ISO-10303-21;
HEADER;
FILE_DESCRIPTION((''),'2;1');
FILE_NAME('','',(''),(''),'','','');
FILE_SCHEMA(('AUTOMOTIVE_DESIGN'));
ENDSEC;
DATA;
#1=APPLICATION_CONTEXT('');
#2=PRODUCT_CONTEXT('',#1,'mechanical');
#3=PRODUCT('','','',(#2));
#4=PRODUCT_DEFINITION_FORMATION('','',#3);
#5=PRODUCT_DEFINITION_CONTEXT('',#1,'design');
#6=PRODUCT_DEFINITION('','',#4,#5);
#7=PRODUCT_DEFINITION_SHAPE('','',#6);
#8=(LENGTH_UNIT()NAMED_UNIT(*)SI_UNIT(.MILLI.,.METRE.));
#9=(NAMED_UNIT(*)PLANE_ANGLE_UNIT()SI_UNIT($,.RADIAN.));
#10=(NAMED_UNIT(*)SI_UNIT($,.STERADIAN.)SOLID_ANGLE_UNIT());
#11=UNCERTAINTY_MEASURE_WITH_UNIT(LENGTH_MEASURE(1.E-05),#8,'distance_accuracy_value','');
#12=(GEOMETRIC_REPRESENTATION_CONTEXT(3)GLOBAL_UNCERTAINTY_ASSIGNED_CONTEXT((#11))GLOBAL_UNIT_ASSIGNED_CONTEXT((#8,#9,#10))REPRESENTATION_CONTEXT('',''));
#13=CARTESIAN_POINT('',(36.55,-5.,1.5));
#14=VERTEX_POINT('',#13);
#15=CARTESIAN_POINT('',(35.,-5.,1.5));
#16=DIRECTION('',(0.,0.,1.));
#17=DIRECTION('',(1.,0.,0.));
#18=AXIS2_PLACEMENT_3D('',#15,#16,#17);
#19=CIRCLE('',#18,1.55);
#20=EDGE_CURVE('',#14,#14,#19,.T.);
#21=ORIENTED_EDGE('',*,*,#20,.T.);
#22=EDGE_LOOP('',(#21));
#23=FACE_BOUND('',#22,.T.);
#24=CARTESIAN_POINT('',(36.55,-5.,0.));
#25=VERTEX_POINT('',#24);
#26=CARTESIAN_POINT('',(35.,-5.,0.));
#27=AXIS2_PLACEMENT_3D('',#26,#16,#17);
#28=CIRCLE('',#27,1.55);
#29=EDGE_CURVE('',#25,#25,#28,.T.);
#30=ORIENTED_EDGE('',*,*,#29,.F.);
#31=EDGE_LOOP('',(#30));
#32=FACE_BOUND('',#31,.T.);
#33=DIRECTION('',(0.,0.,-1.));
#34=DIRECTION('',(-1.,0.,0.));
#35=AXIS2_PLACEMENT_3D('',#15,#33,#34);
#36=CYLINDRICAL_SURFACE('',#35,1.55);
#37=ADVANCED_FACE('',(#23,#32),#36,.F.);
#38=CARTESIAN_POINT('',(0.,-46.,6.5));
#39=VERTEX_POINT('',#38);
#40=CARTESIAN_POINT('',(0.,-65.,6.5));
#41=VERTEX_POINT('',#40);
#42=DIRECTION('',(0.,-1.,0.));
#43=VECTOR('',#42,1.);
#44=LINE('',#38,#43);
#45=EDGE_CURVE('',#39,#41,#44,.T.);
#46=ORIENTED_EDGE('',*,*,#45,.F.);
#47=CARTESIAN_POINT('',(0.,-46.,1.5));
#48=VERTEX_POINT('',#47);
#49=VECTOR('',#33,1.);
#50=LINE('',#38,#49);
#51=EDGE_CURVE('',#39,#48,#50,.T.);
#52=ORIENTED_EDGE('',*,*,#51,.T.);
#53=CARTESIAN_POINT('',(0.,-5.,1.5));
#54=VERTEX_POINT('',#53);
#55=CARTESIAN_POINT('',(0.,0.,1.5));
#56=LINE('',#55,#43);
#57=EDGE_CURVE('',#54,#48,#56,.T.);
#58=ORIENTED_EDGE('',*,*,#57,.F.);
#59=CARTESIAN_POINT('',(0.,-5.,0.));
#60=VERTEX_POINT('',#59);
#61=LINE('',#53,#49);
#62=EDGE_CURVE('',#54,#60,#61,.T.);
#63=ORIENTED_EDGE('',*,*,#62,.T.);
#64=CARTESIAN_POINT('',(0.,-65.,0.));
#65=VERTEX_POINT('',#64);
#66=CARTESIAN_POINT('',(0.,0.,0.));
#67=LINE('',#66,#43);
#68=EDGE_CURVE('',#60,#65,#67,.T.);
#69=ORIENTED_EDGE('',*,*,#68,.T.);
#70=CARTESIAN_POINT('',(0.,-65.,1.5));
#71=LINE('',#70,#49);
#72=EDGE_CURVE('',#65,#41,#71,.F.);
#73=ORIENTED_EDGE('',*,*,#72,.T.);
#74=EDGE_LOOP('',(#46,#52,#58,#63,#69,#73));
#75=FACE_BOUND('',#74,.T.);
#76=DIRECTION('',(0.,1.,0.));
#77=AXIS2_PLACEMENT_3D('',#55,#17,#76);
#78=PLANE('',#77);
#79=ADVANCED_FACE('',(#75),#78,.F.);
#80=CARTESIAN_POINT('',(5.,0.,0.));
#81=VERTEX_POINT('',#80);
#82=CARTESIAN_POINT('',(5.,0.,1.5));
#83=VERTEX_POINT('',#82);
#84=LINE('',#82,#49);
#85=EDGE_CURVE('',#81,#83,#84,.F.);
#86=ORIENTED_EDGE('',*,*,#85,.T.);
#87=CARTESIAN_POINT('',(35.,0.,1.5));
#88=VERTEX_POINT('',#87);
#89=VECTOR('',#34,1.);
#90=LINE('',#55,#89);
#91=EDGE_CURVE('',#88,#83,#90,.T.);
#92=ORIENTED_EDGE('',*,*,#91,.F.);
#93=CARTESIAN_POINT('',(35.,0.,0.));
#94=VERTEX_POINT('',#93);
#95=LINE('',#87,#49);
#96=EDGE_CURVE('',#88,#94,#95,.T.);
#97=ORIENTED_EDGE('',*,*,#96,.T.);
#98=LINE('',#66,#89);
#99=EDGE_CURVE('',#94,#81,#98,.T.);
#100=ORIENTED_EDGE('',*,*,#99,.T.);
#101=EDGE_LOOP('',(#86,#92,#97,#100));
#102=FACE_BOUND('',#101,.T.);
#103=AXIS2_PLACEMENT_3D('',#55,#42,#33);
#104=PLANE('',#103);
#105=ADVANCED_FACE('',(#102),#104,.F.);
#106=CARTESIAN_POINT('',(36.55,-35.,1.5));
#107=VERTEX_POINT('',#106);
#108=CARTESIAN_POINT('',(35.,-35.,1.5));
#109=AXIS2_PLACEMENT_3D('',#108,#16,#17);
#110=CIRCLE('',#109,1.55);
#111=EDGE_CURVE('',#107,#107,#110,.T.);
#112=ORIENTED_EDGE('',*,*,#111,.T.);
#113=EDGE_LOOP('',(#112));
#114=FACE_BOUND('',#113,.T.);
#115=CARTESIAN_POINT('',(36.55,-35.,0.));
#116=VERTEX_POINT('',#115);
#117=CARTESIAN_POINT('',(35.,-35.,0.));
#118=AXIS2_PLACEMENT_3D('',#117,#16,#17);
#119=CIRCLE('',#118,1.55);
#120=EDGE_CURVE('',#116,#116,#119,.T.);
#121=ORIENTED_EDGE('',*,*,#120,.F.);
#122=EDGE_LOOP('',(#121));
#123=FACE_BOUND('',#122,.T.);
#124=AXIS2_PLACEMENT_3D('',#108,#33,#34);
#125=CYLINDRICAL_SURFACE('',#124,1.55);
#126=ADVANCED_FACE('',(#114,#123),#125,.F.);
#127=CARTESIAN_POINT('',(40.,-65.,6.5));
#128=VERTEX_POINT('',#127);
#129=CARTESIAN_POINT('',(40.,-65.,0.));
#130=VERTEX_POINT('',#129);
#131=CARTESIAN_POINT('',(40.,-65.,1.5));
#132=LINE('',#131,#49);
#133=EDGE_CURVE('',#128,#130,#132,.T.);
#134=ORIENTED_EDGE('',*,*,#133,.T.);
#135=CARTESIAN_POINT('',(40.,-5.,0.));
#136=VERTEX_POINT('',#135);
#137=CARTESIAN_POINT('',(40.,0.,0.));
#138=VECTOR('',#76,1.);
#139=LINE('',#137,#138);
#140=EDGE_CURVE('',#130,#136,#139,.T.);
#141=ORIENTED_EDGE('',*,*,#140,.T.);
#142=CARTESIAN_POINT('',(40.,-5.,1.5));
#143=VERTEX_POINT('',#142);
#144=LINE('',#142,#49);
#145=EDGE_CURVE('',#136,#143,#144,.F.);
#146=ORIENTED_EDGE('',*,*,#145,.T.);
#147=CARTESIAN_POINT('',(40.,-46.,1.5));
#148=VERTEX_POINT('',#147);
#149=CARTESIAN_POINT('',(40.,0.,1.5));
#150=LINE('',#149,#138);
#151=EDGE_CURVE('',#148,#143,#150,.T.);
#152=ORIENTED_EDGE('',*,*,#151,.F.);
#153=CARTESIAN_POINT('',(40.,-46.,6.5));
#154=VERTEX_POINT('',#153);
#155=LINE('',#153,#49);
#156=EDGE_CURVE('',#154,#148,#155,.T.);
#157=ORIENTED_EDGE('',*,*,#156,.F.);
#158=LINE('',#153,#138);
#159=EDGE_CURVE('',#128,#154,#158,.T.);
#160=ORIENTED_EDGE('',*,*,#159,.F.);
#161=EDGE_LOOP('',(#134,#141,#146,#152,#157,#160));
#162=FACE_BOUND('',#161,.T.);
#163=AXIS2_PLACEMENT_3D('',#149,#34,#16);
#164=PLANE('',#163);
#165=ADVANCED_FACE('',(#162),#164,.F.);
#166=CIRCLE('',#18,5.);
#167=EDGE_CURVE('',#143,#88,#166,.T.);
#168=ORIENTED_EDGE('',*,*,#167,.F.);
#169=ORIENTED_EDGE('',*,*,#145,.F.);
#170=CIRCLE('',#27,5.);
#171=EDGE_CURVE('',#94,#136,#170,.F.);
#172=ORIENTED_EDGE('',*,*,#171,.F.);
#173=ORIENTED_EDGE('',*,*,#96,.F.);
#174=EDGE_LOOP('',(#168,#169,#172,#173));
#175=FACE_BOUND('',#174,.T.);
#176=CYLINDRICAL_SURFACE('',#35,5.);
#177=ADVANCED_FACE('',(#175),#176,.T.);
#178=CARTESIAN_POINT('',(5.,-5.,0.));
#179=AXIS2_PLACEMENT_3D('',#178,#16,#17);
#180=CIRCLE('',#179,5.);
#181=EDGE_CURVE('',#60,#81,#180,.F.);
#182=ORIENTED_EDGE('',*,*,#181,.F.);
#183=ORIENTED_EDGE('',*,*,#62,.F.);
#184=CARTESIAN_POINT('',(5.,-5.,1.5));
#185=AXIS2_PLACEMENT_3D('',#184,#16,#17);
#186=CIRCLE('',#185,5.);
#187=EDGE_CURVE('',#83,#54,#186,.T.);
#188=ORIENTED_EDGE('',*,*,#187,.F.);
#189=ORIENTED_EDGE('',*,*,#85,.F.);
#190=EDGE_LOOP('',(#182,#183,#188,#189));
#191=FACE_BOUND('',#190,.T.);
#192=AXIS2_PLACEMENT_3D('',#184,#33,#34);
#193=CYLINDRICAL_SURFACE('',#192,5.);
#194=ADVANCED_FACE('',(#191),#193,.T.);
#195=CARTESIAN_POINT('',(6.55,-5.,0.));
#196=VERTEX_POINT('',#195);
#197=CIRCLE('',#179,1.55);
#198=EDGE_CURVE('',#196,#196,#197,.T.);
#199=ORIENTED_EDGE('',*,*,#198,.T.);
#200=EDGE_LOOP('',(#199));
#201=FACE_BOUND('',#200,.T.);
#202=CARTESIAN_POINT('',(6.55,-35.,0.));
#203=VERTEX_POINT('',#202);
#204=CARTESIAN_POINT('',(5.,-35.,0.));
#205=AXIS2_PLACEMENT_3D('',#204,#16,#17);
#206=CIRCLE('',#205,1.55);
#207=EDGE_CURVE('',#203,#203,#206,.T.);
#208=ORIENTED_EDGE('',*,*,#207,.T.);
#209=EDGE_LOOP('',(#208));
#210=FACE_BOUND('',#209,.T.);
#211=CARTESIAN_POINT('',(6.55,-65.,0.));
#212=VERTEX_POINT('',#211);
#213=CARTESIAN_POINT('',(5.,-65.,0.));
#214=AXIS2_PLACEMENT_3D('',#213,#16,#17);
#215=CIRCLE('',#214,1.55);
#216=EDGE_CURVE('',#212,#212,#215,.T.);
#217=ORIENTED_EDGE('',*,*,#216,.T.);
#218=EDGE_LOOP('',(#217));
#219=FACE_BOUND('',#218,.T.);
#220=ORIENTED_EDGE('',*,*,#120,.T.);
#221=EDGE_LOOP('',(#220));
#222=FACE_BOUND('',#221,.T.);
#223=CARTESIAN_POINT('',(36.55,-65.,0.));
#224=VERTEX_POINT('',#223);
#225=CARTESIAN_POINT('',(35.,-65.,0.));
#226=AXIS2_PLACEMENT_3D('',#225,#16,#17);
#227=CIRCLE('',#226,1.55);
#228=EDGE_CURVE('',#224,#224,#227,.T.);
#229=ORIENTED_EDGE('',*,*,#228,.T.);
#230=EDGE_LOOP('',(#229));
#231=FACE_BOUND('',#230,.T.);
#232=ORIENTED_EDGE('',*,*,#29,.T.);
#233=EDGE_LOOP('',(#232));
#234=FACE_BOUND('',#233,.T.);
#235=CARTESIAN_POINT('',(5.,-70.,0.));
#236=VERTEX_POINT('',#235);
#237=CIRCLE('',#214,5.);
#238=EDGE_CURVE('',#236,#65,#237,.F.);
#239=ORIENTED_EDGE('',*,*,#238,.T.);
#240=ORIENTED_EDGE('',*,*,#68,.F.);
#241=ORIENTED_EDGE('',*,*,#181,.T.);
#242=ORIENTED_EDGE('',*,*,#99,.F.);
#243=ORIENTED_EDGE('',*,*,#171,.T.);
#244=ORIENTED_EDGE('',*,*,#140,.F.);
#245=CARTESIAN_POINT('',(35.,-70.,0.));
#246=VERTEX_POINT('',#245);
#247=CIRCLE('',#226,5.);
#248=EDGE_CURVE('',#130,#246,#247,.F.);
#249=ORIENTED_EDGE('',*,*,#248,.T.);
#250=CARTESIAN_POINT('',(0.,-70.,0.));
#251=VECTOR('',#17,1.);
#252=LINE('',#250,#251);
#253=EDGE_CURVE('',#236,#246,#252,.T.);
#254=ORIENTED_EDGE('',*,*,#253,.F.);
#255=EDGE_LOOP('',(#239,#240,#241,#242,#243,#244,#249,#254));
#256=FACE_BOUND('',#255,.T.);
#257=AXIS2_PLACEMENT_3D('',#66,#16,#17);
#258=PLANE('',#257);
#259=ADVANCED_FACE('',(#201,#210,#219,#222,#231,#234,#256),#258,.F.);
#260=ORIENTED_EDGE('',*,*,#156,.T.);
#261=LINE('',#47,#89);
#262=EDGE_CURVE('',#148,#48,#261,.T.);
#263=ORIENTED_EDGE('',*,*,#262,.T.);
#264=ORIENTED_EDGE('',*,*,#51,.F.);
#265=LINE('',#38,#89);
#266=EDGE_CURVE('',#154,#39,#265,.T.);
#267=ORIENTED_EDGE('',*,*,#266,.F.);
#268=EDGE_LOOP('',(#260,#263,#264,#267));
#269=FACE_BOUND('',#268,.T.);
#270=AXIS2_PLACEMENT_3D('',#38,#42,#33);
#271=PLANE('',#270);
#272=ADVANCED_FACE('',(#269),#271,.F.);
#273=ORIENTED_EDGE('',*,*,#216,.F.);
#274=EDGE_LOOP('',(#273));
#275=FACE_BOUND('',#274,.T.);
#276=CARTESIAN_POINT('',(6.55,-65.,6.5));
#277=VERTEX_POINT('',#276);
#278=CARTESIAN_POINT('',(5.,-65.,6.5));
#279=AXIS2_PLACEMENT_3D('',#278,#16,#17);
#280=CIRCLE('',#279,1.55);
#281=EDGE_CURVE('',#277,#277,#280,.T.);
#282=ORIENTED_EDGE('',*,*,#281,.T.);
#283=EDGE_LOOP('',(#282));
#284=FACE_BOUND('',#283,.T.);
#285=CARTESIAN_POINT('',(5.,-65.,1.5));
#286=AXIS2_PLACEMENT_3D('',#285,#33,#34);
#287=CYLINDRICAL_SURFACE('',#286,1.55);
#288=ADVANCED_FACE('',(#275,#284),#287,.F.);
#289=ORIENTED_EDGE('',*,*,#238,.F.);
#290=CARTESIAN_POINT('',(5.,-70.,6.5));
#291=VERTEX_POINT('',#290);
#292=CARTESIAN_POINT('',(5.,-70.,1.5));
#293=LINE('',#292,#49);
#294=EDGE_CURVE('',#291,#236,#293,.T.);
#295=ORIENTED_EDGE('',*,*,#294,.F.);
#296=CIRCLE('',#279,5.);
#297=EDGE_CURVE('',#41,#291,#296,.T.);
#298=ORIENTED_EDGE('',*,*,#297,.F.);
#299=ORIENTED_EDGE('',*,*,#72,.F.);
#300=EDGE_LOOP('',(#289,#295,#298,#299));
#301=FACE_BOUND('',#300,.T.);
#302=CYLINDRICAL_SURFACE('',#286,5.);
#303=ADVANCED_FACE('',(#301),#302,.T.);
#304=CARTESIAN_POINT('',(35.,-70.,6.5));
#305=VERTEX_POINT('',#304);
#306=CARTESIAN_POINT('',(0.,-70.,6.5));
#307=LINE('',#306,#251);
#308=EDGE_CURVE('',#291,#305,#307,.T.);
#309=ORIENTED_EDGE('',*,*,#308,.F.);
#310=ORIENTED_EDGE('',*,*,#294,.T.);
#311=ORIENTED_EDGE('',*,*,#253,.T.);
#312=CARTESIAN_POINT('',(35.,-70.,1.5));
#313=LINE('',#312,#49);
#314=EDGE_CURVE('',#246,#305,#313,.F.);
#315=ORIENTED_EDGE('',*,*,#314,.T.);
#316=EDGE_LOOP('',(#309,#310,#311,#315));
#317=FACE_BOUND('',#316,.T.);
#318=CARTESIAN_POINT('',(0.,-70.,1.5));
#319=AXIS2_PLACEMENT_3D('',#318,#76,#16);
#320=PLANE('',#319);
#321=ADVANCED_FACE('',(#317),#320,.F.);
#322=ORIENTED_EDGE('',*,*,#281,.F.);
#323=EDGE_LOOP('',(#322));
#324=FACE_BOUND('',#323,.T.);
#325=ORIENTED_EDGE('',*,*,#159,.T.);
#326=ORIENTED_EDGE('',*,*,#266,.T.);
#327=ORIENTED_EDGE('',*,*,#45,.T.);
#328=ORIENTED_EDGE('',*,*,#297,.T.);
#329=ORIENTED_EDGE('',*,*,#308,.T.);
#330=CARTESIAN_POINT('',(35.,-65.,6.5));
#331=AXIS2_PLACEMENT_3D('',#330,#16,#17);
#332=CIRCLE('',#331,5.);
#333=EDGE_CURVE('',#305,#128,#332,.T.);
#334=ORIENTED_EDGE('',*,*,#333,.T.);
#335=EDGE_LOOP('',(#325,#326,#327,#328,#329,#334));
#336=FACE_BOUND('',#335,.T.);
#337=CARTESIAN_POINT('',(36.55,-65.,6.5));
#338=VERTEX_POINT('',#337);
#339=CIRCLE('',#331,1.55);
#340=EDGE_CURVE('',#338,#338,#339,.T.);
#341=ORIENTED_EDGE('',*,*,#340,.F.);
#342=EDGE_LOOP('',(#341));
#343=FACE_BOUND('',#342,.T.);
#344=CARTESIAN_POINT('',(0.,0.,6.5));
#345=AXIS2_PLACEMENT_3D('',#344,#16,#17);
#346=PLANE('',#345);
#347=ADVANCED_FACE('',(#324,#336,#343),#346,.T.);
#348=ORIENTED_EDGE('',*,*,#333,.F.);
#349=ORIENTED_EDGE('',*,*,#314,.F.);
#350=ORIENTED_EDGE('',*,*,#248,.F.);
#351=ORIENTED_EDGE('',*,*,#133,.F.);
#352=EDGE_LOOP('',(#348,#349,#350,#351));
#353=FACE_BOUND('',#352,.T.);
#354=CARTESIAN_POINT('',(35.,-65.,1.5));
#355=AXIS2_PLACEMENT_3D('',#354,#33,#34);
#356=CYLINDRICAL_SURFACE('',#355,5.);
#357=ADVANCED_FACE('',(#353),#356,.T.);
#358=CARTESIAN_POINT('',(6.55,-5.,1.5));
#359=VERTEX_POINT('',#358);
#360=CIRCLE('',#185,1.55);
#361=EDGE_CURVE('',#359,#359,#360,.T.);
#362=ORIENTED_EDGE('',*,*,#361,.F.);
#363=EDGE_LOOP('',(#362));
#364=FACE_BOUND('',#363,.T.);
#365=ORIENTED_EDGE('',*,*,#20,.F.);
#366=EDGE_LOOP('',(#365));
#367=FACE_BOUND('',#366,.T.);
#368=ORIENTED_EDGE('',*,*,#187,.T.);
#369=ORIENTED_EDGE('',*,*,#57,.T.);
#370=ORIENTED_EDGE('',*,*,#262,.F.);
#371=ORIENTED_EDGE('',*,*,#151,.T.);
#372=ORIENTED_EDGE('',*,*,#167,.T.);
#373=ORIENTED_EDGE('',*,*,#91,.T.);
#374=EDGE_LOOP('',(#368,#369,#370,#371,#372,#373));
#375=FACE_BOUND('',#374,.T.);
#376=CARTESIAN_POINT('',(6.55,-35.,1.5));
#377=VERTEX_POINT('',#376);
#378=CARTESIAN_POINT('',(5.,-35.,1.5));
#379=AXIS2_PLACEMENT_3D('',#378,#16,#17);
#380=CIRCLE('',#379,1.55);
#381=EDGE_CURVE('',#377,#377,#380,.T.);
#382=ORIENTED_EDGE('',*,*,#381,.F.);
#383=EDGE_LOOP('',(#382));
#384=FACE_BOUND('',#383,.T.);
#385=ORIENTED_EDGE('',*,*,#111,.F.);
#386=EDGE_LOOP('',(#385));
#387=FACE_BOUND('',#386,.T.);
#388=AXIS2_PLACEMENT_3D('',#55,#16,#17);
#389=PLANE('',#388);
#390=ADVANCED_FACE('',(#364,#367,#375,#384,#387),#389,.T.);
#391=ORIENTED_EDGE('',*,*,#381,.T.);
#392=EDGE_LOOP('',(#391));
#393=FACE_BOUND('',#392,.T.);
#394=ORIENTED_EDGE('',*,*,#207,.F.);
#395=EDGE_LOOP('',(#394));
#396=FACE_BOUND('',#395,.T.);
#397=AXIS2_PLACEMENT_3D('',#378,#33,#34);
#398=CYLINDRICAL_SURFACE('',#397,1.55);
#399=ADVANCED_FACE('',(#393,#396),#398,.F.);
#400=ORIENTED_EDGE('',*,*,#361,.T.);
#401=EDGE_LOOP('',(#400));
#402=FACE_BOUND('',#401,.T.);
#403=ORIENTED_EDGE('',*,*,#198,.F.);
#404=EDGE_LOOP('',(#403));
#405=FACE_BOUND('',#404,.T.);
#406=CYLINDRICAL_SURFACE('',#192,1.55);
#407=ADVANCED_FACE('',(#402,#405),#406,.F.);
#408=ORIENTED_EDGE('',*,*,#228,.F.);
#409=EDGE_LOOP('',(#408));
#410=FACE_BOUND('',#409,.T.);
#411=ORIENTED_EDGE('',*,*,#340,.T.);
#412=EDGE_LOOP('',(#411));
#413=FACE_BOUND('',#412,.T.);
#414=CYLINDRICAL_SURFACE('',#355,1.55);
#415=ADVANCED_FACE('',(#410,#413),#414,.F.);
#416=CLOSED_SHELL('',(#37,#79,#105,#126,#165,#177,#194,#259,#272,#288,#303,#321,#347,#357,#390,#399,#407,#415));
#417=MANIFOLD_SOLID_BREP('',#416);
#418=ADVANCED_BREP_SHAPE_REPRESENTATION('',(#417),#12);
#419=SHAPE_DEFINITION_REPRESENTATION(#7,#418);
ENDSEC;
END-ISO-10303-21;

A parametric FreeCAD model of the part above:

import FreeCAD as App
import Part
import Sketcher
Q = App.Units.Quantity


def edges_at(feature, points):
    """Names of the edges that pass closest to the given points."""
    edges = feature.Shape.Edges
    near = lambda p: min(range(len(edges)), key=lambda i: edges[i].distToShape(Part.Vertex(*p))[0])
    return sorted({f"Edge{near(p) + 1}" for p in points})


def add_polygon(sketch, points):
    """Adds a closed chain of lines whose ends are joined by coincident constraints."""
    first, n = sketch.GeometryCount, len(points)
    for a, b in zip(points, points[1:] + points[:1]):
        sketch.addGeometry(Part.LineSegment(App.Vector(*a, 0), App.Vector(*b, 0)), False)
    for i in range(n):
        sketch.addConstraint(Sketcher.Constraint("Coincident", first + i, 2, first + (i + 1) % n, 1))

doc = App.newDocument("Part")
body = doc.addObject("PartDesign::Body", "Body")

sketch1 = body.newObject("Sketcher::SketchObject", "Sketch")
sketch1.AttachmentSupport = (doc.getObject("XY_Plane"), [""])
sketch1.MapMode = "FlatFace"
add_polygon(sketch1, [(0, 0), (0, -70), (40, -70), (40, 0)])
sketch1.addGeometry(Part.Circle(App.Vector(5, -65, 0), App.Vector(0, 0, 1), 1.6), False)
sketch1.addGeometry(Part.Circle(App.Vector(35, -65, 0), App.Vector(0, 0, 1), 1.6), False)
sketch1.addGeometry(Part.Circle(App.Vector(5, -35, 0), App.Vector(0, 0, 1), 1.6), False)
sketch1.addGeometry(Part.Circle(App.Vector(5, -5, 0), App.Vector(0, 0, 1), 1.6), False)
sketch1.addGeometry(Part.Circle(App.Vector(35, -35, 0), App.Vector(0, 0, 1), 1.6), False)
sketch1.addGeometry(Part.Circle(App.Vector(35, -5, 0), App.Vector(0, 0, 1), 1.6), False)
sketch1.addConstraint([
    Sketcher.Constraint("Vertical", 0),
    Sketcher.Constraint("Horizontal", 1),
    Sketcher.Constraint("Vertical", 2),
    Sketcher.Constraint("Horizontal", 3),
    Sketcher.Constraint("Coincident", 3, 2, -1, 1),
    Sketcher.Constraint("Equal", 4, 5),
    Sketcher.Constraint("Equal", 5, 6),
    Sketcher.Constraint("Equal", 6, 7),
    Sketcher.Constraint("Equal", 7, 8),
    Sketcher.Constraint("Equal", 8, 9),
    Sketcher.Constraint("Horizontal", 4, 3, 5, 3),
    Sketcher.Constraint("Horizontal", 6, 3, 8, 3),
    Sketcher.Constraint("Horizontal", 7, 3, 9, 3),
    Sketcher.Constraint("Vertical", 4, 3, 6, 3),
    Sketcher.Constraint("Vertical", 6, 3, 7, 3),
    Sketcher.Constraint("Vertical", 5, 3, 8, 3),
    Sketcher.Constraint("Vertical", 8, 3, 9, 3),
    Sketcher.Constraint("Diameter", 4, Q("3.1 mm")),
    Sketcher.Constraint("DistanceX", 1, 1, 1, 2, Q("40 mm")),
    Sketcher.Constraint("DistanceY", 0, 2, 0, 1, Q("70 mm")),
    Sketcher.Constraint("DistanceX", -1, 1, 4, 3, Q("5 mm")),
    Sketcher.Constraint("DistanceY", 4, 3, -1, 1, Q("65 mm")),
    Sketcher.Constraint("DistanceX", -1, 1, 5, 3, Q("35 mm")),
    Sketcher.Constraint("DistanceY", 6, 3, -1, 1, Q("35 mm")),
    Sketcher.Constraint("DistanceY", 7, 3, -1, 1, Q("5 mm")),
])
pad1 = body.newObject("PartDesign::Pad", "Pad")
pad1.Profile = sketch1
pad1.Length = 1.5

sketch2 = body.newObject("Sketcher::SketchObject", "Sketch001")
sketch2.AttachmentSupport = (doc.getObject("XY_Plane"), [""])
sketch2.MapMode = "FlatFace"
sketch2.AttachmentOffset = App.Placement(App.Vector(0, 0, 1.5), App.Rotation())
add_polygon(sketch2, [(0, -46), (0, -70), (40, -70), (40, -46)])
sketch2.addConstraint([
    Sketcher.Constraint("Vertical", 0),
    Sketcher.Constraint("Horizontal", 1),
    Sketcher.Constraint("Vertical", 2),
    Sketcher.Constraint("Horizontal", 3),
    Sketcher.Constraint("PointOnObject", 0, 2, -2),
    Sketcher.Constraint("DistanceX", 1, 1, 1, 2, Q("40 mm")),
    Sketcher.Constraint("DistanceY", 0, 2, 0, 1, Q("24 mm")),
    Sketcher.Constraint("DistanceY", 0, 2, -1, 1, Q("70 mm")),
])
pad2 = body.newObject("PartDesign::Pad", "Pad001")
pad2.Profile = sketch2
pad2.Length = 5

sketch3 = body.newObject("Sketcher::SketchObject", "Sketch002")
sketch3.AttachmentSupport = (doc.getObject("XY_Plane"), [""])
sketch3.MapMode = "FlatFace"
sketch3.AttachmentOffset = App.Placement(App.Vector(0, 0, 1.5), App.Rotation())
sketch3.addGeometry([
    Part.Circle(App.Vector(35, -65, 0), App.Vector(0, 0, 1), 1.6),
    Part.Circle(App.Vector(5, -65, 0), App.Vector(0, 0, 1), 1.6),
], False)
sketch3.addConstraint([
    Sketcher.Constraint("Equal", 0, 1),
    Sketcher.Constraint("Horizontal", 0, 3, 1, 3),
    Sketcher.Constraint("Diameter", 0, Q("3.1 mm")),
    Sketcher.Constraint("DistanceX", -1, 1, 0, 3, Q("35 mm")),
    Sketcher.Constraint("DistanceY", 0, 3, -1, 1, Q("65 mm")),
    Sketcher.Constraint("DistanceX", -1, 1, 1, 3, Q("5 mm")),
])
pocket1 = body.newObject("PartDesign::Pocket", "Pocket")
pocket1.Profile = sketch3
pocket1.Length = 25
pocket1.Reversed = True
doc.recompute()

fillet = body.newObject("PartDesign::Fillet", "Fillet")
fillet.Base = (pocket1, edges_at(pocket1, [
    (0, 0, 0.75),
    (40, 0, 0.75),
    (40, -70, 3.25),
    (0, -70, 3.25),
]))
fillet.Radius = 5

doc.recompute()
